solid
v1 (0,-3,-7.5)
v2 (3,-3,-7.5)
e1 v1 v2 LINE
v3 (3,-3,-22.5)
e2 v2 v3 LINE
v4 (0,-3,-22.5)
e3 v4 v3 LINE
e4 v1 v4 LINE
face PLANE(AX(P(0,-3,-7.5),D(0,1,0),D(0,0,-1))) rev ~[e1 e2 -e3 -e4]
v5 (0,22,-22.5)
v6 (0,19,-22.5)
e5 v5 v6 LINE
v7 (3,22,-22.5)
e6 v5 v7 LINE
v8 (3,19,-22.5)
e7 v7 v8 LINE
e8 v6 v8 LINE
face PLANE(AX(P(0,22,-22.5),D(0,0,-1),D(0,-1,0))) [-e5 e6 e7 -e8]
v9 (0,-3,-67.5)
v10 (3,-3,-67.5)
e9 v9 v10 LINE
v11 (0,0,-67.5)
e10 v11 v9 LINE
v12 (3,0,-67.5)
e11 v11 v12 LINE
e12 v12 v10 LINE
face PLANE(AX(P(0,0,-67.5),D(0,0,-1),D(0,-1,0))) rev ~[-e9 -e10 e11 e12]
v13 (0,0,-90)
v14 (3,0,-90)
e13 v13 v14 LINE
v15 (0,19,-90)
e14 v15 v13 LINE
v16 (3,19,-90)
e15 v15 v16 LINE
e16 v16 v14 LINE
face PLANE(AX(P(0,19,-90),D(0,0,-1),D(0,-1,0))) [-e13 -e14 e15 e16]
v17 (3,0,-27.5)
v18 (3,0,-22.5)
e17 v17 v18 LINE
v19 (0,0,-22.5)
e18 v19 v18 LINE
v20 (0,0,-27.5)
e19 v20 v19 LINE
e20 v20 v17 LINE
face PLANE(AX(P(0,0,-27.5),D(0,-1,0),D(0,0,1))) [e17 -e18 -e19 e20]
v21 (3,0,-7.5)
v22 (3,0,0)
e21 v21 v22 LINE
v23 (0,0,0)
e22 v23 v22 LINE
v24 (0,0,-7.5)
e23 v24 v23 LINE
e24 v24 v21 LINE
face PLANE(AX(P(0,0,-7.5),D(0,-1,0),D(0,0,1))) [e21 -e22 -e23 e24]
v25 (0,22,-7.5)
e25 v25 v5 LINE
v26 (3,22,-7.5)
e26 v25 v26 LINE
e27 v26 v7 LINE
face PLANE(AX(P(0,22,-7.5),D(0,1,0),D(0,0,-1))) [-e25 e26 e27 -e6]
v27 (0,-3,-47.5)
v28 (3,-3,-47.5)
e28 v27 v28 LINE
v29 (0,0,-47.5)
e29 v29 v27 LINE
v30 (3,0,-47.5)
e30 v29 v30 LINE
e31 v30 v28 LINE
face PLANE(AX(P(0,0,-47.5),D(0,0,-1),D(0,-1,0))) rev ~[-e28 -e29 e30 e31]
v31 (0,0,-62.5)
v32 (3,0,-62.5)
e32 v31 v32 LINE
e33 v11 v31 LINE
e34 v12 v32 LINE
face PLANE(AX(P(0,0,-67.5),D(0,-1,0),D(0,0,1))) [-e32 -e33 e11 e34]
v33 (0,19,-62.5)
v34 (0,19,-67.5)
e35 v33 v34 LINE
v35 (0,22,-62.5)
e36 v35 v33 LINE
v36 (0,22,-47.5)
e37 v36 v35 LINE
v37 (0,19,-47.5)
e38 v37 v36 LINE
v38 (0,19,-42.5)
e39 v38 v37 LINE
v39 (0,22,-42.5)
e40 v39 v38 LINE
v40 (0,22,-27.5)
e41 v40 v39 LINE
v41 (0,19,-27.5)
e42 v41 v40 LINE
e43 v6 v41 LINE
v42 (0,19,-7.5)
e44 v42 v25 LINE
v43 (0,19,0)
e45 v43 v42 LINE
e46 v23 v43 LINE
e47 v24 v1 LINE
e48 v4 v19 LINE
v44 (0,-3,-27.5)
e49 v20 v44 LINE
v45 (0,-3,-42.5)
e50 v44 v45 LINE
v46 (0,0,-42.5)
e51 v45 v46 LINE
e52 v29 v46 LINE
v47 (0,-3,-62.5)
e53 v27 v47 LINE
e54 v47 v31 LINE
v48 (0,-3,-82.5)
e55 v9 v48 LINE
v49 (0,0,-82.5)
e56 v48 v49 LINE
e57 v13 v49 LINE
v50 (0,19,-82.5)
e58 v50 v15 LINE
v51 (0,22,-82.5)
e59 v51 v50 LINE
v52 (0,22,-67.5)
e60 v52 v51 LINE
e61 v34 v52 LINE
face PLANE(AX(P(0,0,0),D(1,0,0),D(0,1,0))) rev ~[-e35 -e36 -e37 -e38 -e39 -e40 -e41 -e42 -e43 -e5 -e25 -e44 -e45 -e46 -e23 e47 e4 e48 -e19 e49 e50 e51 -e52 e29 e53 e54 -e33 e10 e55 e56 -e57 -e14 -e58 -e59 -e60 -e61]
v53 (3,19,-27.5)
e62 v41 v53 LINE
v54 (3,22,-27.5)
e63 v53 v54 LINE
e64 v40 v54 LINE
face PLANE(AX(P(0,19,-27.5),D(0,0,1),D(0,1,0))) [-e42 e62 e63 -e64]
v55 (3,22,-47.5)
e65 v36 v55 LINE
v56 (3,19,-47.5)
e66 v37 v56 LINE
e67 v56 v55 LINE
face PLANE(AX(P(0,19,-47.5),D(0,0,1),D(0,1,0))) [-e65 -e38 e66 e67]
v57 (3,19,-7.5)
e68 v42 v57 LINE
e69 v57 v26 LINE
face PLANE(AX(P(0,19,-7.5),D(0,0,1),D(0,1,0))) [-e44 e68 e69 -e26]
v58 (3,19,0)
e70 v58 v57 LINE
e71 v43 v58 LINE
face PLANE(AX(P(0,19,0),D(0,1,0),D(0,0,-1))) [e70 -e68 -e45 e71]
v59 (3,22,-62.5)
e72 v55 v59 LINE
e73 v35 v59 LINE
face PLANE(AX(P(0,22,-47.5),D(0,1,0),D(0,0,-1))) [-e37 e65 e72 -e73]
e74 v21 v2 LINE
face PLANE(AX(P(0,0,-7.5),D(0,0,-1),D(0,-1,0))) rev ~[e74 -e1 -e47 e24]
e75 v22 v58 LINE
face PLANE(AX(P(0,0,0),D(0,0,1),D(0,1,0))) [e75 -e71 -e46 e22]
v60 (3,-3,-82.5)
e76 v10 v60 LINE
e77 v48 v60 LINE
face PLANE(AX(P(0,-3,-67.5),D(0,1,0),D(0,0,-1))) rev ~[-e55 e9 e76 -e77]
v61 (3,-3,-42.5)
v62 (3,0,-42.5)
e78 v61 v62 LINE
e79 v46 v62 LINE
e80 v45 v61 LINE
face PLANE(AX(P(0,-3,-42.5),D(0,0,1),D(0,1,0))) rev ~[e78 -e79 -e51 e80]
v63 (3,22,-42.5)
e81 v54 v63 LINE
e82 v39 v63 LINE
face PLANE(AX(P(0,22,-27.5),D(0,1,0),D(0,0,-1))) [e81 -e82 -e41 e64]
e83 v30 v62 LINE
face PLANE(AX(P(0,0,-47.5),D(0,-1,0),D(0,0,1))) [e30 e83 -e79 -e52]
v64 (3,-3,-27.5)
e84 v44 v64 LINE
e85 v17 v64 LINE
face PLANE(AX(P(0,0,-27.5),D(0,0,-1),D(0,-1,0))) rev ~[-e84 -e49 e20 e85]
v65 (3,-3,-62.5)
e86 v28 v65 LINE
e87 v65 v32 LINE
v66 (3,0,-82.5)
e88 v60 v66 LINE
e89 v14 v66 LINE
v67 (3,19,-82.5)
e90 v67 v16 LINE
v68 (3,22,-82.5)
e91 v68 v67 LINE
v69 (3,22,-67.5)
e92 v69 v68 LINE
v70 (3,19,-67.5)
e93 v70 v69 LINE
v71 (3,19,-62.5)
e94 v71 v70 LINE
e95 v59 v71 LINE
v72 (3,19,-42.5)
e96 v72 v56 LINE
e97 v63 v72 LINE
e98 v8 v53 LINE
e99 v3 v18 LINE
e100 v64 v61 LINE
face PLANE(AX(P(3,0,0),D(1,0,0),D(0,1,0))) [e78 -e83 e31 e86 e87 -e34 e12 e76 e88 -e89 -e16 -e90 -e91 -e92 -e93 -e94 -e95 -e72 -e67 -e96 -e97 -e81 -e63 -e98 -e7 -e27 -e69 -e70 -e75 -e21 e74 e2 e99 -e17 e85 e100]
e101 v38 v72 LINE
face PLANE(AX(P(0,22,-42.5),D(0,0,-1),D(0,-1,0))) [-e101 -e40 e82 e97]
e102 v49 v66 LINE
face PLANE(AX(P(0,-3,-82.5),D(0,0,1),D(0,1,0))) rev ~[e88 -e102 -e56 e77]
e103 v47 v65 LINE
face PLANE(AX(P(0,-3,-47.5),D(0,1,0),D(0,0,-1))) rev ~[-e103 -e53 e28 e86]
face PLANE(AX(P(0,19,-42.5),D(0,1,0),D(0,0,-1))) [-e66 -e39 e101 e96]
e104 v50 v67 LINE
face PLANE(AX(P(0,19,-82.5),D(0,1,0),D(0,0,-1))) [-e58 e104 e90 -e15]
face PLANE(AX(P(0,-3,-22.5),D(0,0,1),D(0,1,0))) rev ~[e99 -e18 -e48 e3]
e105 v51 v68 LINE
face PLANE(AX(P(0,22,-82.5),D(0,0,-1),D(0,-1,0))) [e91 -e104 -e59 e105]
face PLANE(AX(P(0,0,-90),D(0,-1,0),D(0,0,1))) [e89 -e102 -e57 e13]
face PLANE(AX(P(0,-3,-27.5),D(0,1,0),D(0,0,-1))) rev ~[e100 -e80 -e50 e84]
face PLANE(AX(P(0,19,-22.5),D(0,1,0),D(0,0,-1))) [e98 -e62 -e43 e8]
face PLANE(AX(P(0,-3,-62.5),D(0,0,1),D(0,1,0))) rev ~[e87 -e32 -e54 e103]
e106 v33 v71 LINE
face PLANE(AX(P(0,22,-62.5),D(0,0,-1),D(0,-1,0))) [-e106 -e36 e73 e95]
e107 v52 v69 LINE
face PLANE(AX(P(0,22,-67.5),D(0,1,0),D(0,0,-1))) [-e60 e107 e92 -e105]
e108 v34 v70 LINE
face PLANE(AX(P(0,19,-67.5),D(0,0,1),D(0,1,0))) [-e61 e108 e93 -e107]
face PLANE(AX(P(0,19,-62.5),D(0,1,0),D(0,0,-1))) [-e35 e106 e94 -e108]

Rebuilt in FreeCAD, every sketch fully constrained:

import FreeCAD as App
import Part
import Sketcher
from FreeCAD import Vector
Q = App.Units.Quantity

doc = App.newDocument("Part")
params = doc.addObject("Spreadsheet::Sheet", "Params")
for row, (alias, value) in enumerate([
    ("sketch1_width", "19 mm"),
    ("sketch1_width2", "3 mm"),
    ("sketch1_height", "15 mm"),
    ("sketch1_height2", "7.5 mm"),
    ("pad1_length", "3 mm"),
], start=1):
    params.set(f"A{row}", alias)
    params.set(f"B{row}", "=" + value)
    params.setAlias(f"B{row}", alias)

body = doc.addObject("PartDesign::Body", "Body")

sketch1 = body.newObject("Sketcher::SketchObject", "Sketch")
sketch1.AttachmentSupport = (doc.getObject("YZ_Plane"), [""])
sketch1.MapMode = "FlatFace"
sketch1.addGeometry(Part.LineSegment(Vector(19, 0, 0), Vector(0, 0, 0)), False)
sketch1.addGeometry(Part.LineSegment(Vector(0, 0, 0), Vector(0, -7.5, 0)), False)
sketch1.addGeometry(Part.LineSegment(Vector(0, -7.5, 0), Vector(-3, -7.5, 0)), False)
sketch1.addGeometry(Part.LineSegment(Vector(-3, -7.5, 0), Vector(-3, -22.5, 0)), False)
sketch1.addGeometry(Part.LineSegment(Vector(-3, -22.5, 0), Vector(0, -22.5, 0)), False)
sketch1.addGeometry(Part.LineSegment(Vector(0, -22.5, 0), Vector(0, -27.5, 0)), False)
sketch1.addGeometry(Part.LineSegment(Vector(0, -27.5, 0), Vector(-3, -27.5, 0)), False)
sketch1.addGeometry(Part.LineSegment(Vector(-3, -27.5, 0), Vector(-3, -42.5, 0)), False)
sketch1.addGeometry(Part.LineSegment(Vector(-3, -42.5, 0), Vector(0, -42.5, 0)), False)
sketch1.addGeometry(Part.LineSegment(Vector(0, -42.5, 0), Vector(0, -47.5, 0)), False)
sketch1.addGeometry(Part.LineSegment(Vector(0, -47.5, 0), Vector(-3, -47.5, 0)), False)
sketch1.addGeometry(Part.LineSegment(Vector(-3, -47.5, 0), Vector(-3, -62.5, 0)), False)
sketch1.addGeometry(Part.LineSegment(Vector(-3, -62.5, 0), Vector(0, -62.5, 0)), False)
sketch1.addGeometry(Part.LineSegment(Vector(0, -62.5, 0), Vector(0, -67.5, 0)), False)
sketch1.addGeometry(Part.LineSegment(Vector(0, -67.5, 0), Vector(-3, -67.5, 0)), False)
sketch1.addGeometry(Part.LineSegment(Vector(-3, -67.5, 0), Vector(-3, -82.5, 0)), False)
sketch1.addGeometry(Part.LineSegment(Vector(-3, -82.5, 0), Vector(0, -82.5, 0)), False)
sketch1.addGeometry(Part.LineSegment(Vector(0, -82.5, 0), Vector(0, -90, 0)), False)
sketch1.addGeometry(Part.LineSegment(Vector(0, -90, 0), Vector(19, -90, 0)), False)
sketch1.addGeometry(Part.LineSegment(Vector(19, -90, 0), Vector(19, -82.5, 0)), False)
sketch1.addGeometry(Part.LineSegment(Vector(19, -82.5, 0), Vector(22, -82.5, 0)), False)
sketch1.addGeometry(Part.LineSegment(Vector(22, -82.5, 0), Vector(22, -67.5, 0)), False)
sketch1.addGeometry(Part.LineSegment(Vector(22, -67.5, 0), Vector(19, -67.5, 0)), False)
sketch1.addGeometry(Part.LineSegment(Vector(19, -67.5, 0), Vector(19, -62.5, 0)), False)
sketch1.addGeometry(Part.LineSegment(Vector(19, -62.5, 0), Vector(22, -62.5, 0)), False)
sketch1.addGeometry(Part.LineSegment(Vector(22, -62.5, 0), Vector(22, -47.5, 0)), False)
sketch1.addGeometry(Part.LineSegment(Vector(22, -47.5, 0), Vector(19, -47.5, 0)), False)
sketch1.addGeometry(Part.LineSegment(Vector(19, -47.5, 0), Vector(19, -42.5, 0)), False)
sketch1.addGeometry(Part.LineSegment(Vector(19, -42.5, 0), Vector(22, -42.5, 0)), False)
sketch1.addGeometry(Part.LineSegment(Vector(22, -42.5, 0), Vector(22, -27.5, 0)), False)
sketch1.addGeometry(Part.LineSegment(Vector(22, -27.5, 0), Vector(19, -27.5, 0)), False)
sketch1.addGeometry(Part.LineSegment(Vector(19, -27.5, 0), Vector(19, -22.5, 0)), False)
sketch1.addGeometry(Part.LineSegment(Vector(19, -22.5, 0), Vector(22, -22.5, 0)), False)
sketch1.addGeometry(Part.LineSegment(Vector(22, -22.5, 0), Vector(22, -7.5, 0)), False)
sketch1.addGeometry(Part.LineSegment(Vector(22, -7.5, 0), Vector(19, -7.5, 0)), False)
sketch1.addGeometry(Part.LineSegment(Vector(19, -7.5, 0), Vector(19, 0, 0)), False)
sketch1.addConstraint(Sketcher.Constraint("Coincident", 0, 2, 1, 1))
sketch1.addConstraint(Sketcher.Constraint("Coincident", 1, 2, 2, 1))
sketch1.addConstraint(Sketcher.Constraint("Coincident", 2, 2, 3, 1))
sketch1.addConstraint(Sketcher.Constraint("Coincident", 3, 2, 4, 1))
sketch1.addConstraint(Sketcher.Constraint("Coincident", 4, 2, 5, 1))
sketch1.addConstraint(Sketcher.Constraint("Coincident", 5, 2, 6, 1))
sketch1.addConstraint(Sketcher.Constraint("Coincident", 6, 2, 7, 1))
sketch1.addConstraint(Sketcher.Constraint("Coincident", 7, 2, 8, 1))
sketch1.addConstraint(Sketcher.Constraint("Coincident", 8, 2, 9, 1))
sketch1.addConstraint(Sketcher.Constraint("Coincident", 9, 2, 10, 1))
sketch1.addConstraint(Sketcher.Constraint("Coincident", 10, 2, 11, 1))
sketch1.addConstraint(Sketcher.Constraint("Coincident", 11, 2, 12, 1))
sketch1.addConstraint(Sketcher.Constraint("Coincident", 12, 2, 13, 1))
sketch1.addConstraint(Sketcher.Constraint("Coincident", 13, 2, 14, 1))
sketch1.addConstraint(Sketcher.Constraint("Coincident", 14, 2, 15, 1))
sketch1.addConstraint(Sketcher.Constraint("Coincident", 15, 2, 16, 1))
sketch1.addConstraint(Sketcher.Constraint("Coincident", 16, 2, 17, 1))
sketch1.addConstraint(Sketcher.Constraint("Coincident", 17, 2, 18, 1))
sketch1.addConstraint(Sketcher.Constraint("Coincident", 18, 2, 19, 1))
sketch1.addConstraint(Sketcher.Constraint("Coincident", 19, 2, 20, 1))
sketch1.addConstraint(Sketcher.Constraint("Coincident", 20, 2, 21, 1))
sketch1.addConstraint(Sketcher.Constraint("Coincident", 21, 2, 22, 1))
sketch1.addConstraint(Sketcher.Constraint("Coincident", 22, 2, 23, 1))
sketch1.addConstraint(Sketcher.Constraint("Coincident", 23, 2, 24, 1))
sketch1.addConstraint(Sketcher.Constraint("Coincident", 24, 2, 25, 1))
sketch1.addConstraint(Sketcher.Constraint("Coincident", 25, 2, 26, 1))
sketch1.addConstraint(Sketcher.Constraint("Coincident", 26, 2, 27, 1))
sketch1.addConstraint(Sketcher.Constraint("Coincident", 27, 2, 28, 1))
sketch1.addConstraint(Sketcher.Constraint("Coincident", 28, 2, 29, 1))
sketch1.addConstraint(Sketcher.Constraint("Coincident", 29, 2, 30, 1))
sketch1.addConstraint(Sketcher.Constraint("Coincident", 30, 2, 31, 1))
sketch1.addConstraint(Sketcher.Constraint("Coincident", 31, 2, 32, 1))
sketch1.addConstraint(Sketcher.Constraint("Coincident", 32, 2, 33, 1))
sketch1.addConstraint(Sketcher.Constraint("Coincident", 33, 2, 34, 1))
sketch1.addConstraint(Sketcher.Constraint("Coincident", 34, 2, 35, 1))
sketch1.addConstraint(Sketcher.Constraint("Coincident", 35, 2, 0, 1))
sketch1.addConstraint(Sketcher.Constraint("Horizontal", 0))
sketch1.addConstraint(Sketcher.Constraint("Vertical", 1))
sketch1.addConstraint(Sketcher.Constraint("Horizontal", 2))
sketch1.addConstraint(Sketcher.Constraint("Vertical", 3))
sketch1.addConstraint(Sketcher.Constraint("Horizontal", 4))
sketch1.addConstraint(Sketcher.Constraint("Vertical", 5))
sketch1.addConstraint(Sketcher.Constraint("Horizontal", 6))
sketch1.addConstraint(Sketcher.Constraint("Vertical", 7))
sketch1.addConstraint(Sketcher.Constraint("Horizontal", 8))
sketch1.addConstraint(Sketcher.Constraint("Vertical", 9))
sketch1.addConstraint(Sketcher.Constraint("Horizontal", 10))
sketch1.addConstraint(Sketcher.Constraint("Vertical", 11))
sketch1.addConstraint(Sketcher.Constraint("Horizontal", 12))
sketch1.addConstraint(Sketcher.Constraint("Vertical", 13))
sketch1.addConstraint(Sketcher.Constraint("Horizontal", 14))
sketch1.addConstraint(Sketcher.Constraint("Vertical", 15))
sketch1.addConstraint(Sketcher.Constraint("Horizontal", 16))
sketch1.addConstraint(Sketcher.Constraint("Vertical", 17))
sketch1.addConstraint(Sketcher.Constraint("Horizontal", 18))
sketch1.addConstraint(Sketcher.Constraint("Vertical", 19))
sketch1.addConstraint(Sketcher.Constraint("Horizontal", 20))
sketch1.addConstraint(Sketcher.Constraint("Vertical", 21))
sketch1.addConstraint(Sketcher.Constraint("Horizontal", 22))
sketch1.addConstraint(Sketcher.Constraint("Vertical", 23))
sketch1.addConstraint(Sketcher.Constraint("Horizontal", 24))
sketch1.addConstraint(Sketcher.Constraint("Vertical", 25))
sketch1.addConstraint(Sketcher.Constraint("Horizontal", 26))
sketch1.addConstraint(Sketcher.Constraint("Vertical", 27))
sketch1.addConstraint(Sketcher.Constraint("Horizontal", 28))
sketch1.addConstraint(Sketcher.Constraint("Vertical", 29))
sketch1.addConstraint(Sketcher.Constraint("Horizontal", 30))
sketch1.addConstraint(Sketcher.Constraint("Vertical", 31))
sketch1.addConstraint(Sketcher.Constraint("Horizontal", 32))
sketch1.addConstraint(Sketcher.Constraint("Vertical", 33))
sketch1.addConstraint(Sketcher.Constraint("Horizontal", 34))
sketch1.addConstraint(Sketcher.Constraint("Vertical", 35))
sketch1.addConstraint(Sketcher.Constraint("Coincident", 0, 2, -1, 1))
sketch1.addConstraint(Sketcher.Constraint("PointOnObject", 4, 2, -2))
sketch1.addConstraint(Sketcher.Constraint("PointOnObject", 8, 2, -2))
sketch1.addConstraint(Sketcher.Constraint("PointOnObject", 12, 2, -2))
sketch1.addConstraint(Sketcher.Constraint("PointOnObject", 16, 2, -2))
sketch1.addConstraint(Sketcher.Constraint("Horizontal", 16, 2, 19, 2))
sketch1.addConstraint(Sketcher.Constraint("Horizontal", 14, 2, 21, 2))
sketch1.addConstraint(Sketcher.Constraint("Horizontal", 12, 2, 23, 2))
sketch1.addConstraint(Sketcher.Constraint("Horizontal", 10, 2, 25, 2))
sketch1.addConstraint(Sketcher.Constraint("Horizontal", 8, 2, 27, 2))
sketch1.addConstraint(Sketcher.Constraint("Horizontal", 6, 2, 29, 2))
sketch1.addConstraint(Sketcher.Constraint("Horizontal", 4, 2, 31, 2))
sketch1.addConstraint(Sketcher.Constraint("Horizontal", 2, 2, 33, 2))
sketch1.addConstraint(Sketcher.Constraint("Vertical", 3, 2, 6, 2))
sketch1.addConstraint(Sketcher.Constraint("Vertical", 7, 2, 10, 2))
sketch1.addConstraint(Sketcher.Constraint("Vertical", 11, 2, 14, 2))
sketch1.addConstraint(Sketcher.Constraint("Vertical", 19, 2, 22, 2))
sketch1.addConstraint(Sketcher.Constraint("Vertical", 21, 2, 24, 2))
sketch1.addConstraint(Sketcher.Constraint("Vertical", 23, 2, 26, 2))
sketch1.addConstraint(Sketcher.Constraint("Vertical", 25, 2, 28, 2))
sketch1.addConstraint(Sketcher.Constraint("Vertical", 27, 2, 30, 2))
sketch1.addConstraint(Sketcher.Constraint("Vertical", 29, 2, 32, 2))
sketch1.addConstraint(Sketcher.Constraint("Vertical", 31, 2, 34, 2))
sketch1.addConstraint(Sketcher.Constraint("Equal", 16, 20))
sketch1.addConstraint(Sketcher.Constraint("Equal", 3, 7))
sketch1.addConstraint(Sketcher.Constraint("Equal", 5, 9))
sketch1.addConstraint(Sketcher.Constraint("Equal", 7, 11))
sketch1.addConstraint(Sketcher.Constraint("Equal", 9, 13))
sketch1.addConstraint(Sketcher.Constraint("Equal", 11, 15))
sketch1.addConstraint(Sketcher.Constraint("Equal", 1, 17))
sketch1.addConstraint(Sketcher.Constraint("DistanceX", 0, 2, 0, 1, Q("19 mm")))
sketch1.addConstraint(Sketcher.Constraint("DistanceX", 2, 2, 2, 1, Q("3 mm")))
sketch1.addConstraint(Sketcher.Constraint("DistanceY", 3, 2, 3, 1, Q("15 mm")))
sketch1.addConstraint(Sketcher.Constraint("DistanceY", 1, 2, 1, 1, Q("7.5 mm")))
sketch1.addConstraint(Sketcher.Constraint("DistanceY", 17, 2, -1, 1, Q("90 mm")))
sketch1.setExpression("Constraints[102]", "Params.sketch1_width")
sketch1.setExpression("Constraints[103]", "Params.sketch1_width2")
sketch1.setExpression("Constraints[104]", "Params.sketch1_height")
sketch1.setExpression("Constraints[105]", "Params.sketch1_height2")
pad1 = body.newObject("PartDesign::Pad", "Pad")
pad1.Profile = sketch1
pad1.setExpression("Length", "Params.pad1_length")

doc.recompute()
